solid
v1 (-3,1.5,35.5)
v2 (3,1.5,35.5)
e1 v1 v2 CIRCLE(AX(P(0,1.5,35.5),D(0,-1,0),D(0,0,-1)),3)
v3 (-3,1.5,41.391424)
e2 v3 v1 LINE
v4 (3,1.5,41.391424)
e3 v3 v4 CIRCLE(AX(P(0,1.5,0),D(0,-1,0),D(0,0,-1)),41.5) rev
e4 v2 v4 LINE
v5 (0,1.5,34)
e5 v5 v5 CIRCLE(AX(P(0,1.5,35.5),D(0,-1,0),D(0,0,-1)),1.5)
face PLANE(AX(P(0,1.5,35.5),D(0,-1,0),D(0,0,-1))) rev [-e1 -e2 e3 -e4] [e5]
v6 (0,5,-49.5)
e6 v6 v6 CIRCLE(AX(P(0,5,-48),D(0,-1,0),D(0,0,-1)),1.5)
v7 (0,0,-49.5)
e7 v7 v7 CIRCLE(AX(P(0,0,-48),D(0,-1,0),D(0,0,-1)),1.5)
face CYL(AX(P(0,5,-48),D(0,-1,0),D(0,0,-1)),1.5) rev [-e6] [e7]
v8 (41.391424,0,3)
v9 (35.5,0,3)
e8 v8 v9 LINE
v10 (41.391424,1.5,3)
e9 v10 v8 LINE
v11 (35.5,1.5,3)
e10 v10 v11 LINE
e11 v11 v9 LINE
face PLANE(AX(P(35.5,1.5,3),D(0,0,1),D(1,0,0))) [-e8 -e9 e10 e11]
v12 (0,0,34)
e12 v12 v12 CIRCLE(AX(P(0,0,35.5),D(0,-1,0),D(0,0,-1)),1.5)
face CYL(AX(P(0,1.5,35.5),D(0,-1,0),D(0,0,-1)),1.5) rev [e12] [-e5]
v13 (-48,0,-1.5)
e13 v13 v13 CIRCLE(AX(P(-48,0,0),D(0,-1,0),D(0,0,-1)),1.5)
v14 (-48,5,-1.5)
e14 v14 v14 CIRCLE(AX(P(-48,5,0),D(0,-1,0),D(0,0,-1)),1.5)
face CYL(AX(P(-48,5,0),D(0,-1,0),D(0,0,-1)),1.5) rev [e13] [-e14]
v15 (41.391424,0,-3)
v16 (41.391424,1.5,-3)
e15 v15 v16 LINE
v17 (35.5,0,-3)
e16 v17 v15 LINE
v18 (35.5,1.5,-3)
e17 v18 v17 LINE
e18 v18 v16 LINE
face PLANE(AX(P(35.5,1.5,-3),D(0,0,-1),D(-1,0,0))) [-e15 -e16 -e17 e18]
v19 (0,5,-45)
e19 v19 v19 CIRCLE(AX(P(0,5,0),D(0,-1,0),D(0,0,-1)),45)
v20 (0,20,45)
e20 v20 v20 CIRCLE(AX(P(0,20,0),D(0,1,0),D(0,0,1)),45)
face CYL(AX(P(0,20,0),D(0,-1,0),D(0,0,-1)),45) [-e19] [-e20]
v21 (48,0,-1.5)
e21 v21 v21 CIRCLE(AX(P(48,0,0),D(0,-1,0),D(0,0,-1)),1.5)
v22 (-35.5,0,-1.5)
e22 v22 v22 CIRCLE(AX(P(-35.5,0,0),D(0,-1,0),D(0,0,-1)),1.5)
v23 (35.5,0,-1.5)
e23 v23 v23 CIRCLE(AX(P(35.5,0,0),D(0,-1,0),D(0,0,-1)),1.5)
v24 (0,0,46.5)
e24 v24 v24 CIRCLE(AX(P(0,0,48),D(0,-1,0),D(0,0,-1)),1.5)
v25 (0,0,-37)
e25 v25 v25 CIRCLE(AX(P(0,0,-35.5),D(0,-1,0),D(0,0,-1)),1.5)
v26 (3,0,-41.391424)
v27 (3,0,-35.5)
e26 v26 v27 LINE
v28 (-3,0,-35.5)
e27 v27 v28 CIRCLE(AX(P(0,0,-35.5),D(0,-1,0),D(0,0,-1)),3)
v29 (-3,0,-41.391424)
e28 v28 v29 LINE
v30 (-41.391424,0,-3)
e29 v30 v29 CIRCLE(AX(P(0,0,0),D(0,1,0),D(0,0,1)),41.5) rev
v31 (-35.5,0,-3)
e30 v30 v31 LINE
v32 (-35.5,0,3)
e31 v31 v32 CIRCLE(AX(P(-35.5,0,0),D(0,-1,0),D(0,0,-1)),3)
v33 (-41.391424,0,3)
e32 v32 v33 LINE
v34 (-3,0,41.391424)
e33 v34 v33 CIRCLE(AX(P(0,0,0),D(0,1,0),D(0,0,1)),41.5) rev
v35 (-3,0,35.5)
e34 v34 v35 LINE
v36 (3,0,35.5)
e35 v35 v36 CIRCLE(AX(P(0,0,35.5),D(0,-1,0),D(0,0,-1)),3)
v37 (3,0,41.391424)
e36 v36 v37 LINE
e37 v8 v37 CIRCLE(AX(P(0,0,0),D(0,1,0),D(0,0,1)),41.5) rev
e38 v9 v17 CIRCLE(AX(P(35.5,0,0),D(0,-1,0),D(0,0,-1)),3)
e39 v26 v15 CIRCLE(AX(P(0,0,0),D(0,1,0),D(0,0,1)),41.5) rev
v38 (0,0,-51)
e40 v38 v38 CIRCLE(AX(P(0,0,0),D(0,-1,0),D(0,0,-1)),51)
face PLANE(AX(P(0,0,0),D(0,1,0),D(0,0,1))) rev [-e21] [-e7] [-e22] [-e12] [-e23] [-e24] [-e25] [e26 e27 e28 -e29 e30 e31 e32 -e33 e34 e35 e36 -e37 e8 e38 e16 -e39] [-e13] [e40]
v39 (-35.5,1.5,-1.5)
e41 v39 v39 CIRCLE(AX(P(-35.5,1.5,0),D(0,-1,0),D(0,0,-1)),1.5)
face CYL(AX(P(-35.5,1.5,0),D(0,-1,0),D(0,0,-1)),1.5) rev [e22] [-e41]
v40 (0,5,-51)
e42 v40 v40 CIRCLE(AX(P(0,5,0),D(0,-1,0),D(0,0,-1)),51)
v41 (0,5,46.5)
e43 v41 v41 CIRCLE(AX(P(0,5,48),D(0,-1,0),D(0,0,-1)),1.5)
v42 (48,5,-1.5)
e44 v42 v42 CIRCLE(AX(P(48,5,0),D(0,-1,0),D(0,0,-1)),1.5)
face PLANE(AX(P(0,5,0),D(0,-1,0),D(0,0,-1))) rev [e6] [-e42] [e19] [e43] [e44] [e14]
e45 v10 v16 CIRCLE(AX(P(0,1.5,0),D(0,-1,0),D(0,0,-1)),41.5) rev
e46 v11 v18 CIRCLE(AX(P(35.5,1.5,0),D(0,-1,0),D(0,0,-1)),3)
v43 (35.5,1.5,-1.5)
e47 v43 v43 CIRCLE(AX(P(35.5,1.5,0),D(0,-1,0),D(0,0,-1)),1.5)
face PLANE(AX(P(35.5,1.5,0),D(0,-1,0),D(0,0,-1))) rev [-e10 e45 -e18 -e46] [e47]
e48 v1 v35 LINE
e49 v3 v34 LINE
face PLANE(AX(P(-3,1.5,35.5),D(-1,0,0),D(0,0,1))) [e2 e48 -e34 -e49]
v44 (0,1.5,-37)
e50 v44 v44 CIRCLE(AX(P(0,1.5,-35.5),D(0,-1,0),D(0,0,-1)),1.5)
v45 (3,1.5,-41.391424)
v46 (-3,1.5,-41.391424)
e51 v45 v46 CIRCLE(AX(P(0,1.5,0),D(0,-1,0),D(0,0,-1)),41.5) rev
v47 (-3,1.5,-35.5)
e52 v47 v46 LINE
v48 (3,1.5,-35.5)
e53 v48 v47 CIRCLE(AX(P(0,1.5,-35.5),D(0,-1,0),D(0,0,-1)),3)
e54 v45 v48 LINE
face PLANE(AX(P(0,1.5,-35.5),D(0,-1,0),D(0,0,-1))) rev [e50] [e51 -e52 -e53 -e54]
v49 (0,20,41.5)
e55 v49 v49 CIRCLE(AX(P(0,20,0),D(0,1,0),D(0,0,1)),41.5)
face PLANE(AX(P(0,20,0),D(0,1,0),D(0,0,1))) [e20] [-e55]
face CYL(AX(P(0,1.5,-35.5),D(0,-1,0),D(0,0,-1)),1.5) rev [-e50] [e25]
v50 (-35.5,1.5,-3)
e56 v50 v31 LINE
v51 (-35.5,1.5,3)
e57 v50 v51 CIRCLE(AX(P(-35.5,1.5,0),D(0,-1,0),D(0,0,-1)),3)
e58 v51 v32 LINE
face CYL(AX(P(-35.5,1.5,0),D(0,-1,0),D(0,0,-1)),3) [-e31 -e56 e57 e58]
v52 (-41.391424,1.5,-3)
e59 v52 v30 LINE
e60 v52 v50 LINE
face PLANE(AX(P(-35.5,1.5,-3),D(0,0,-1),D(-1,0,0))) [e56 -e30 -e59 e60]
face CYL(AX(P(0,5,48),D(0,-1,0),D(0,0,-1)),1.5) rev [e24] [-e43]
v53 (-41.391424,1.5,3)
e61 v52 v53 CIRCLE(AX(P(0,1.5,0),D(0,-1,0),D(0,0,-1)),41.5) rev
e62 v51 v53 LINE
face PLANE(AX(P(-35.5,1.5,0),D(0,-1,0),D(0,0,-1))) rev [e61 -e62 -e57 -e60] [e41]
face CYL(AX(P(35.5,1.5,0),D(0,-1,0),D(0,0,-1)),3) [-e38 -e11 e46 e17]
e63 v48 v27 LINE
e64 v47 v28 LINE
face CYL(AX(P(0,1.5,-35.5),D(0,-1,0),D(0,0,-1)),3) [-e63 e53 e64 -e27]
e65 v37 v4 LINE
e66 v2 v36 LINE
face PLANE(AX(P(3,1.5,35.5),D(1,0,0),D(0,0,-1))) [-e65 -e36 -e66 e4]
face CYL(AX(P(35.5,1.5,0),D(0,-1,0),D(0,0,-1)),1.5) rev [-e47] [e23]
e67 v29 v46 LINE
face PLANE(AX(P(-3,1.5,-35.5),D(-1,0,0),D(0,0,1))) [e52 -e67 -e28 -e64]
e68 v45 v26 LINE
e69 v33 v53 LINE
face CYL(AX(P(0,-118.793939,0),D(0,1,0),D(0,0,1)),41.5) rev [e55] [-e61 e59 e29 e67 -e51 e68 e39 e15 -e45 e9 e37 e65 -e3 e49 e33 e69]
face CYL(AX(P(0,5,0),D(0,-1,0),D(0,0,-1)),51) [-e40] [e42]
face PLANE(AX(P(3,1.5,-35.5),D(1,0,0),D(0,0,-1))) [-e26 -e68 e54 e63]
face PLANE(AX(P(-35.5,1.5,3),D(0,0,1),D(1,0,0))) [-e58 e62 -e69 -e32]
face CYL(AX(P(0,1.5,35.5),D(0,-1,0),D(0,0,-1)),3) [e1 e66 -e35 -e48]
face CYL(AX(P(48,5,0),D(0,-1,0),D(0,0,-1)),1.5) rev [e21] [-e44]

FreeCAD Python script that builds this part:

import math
import FreeCAD as App
import Part
import Sketcher

doc = App.newDocument("Part")
body = doc.addObject("PartDesign::Body", "Body")

# Sketch on XZ plane
sketch1 = doc.addObject("Sketcher::SketchObject", "Sketch")
body.addObject(sketch1)
sketch1.AttachmentSupport = (doc.XZ_Plane, [""])
sketch1.MapMode = "FlatFace"
sketch1.addGeometry([
    Part.Circle(App.Vector(0, 0, 0), App.Vector(0, 0, 1), 45),
    Part.Circle(App.Vector(0, 0, 0), App.Vector(0, 0, 1), 42),
], False)
sketch1.addConstraint([
    Sketcher.Constraint("Coincident", 0, 3, -1, 1),
    Sketcher.Constraint("Coincident", 1, 3, -1, 1),
    Sketcher.Constraint("Diameter", 0, 90.0),
    Sketcher.Constraint("Diameter", 1, 84.0),
])
pad1 = doc.addObject("PartDesign::Pad", "Pad")
body.addObject(pad1)
pad1.Profile = sketch1
pad1.Length = 20
pad1.Reversed = True

# Sketch on XZ plane
sketch2 = doc.addObject("Sketcher::SketchObject", "Sketch001")
body.addObject(sketch2)
sketch2.AttachmentSupport = (doc.XZ_Plane, [""])
sketch2.MapMode = "FlatFace"
sketch2.addGeometry([
    Part.Circle(App.Vector(0, 0, 0), App.Vector(0, 0, 1), 51),  # 0
    Part.Circle(App.Vector(0, 48, 0), App.Vector(0, 0, 1), 1.5),  # 1
    Part.Circle(App.Vector(-48, 0, 0), App.Vector(0, 0, 1), 1.5),  # 2
    Part.Circle(App.Vector(48, 0, 0), App.Vector(0, 0, 1), 1.5),  # 3
    Part.Circle(App.Vector(0, 0, 0), App.Vector(0, 0, 1), 45),  # 4
    Part.Circle(App.Vector(0, -48, 0), App.Vector(0, 0, 1), 1.5),  # 5
], False)
sketch2.addConstraint([
    Sketcher.Constraint("Coincident", 0, 3, -1, 1),
    Sketcher.Constraint("Coincident", 4, 3, -1, 1),
    Sketcher.Constraint("Equal", 1, 2),
    Sketcher.Constraint("Equal", 2, 3),
    Sketcher.Constraint("Equal", 3, 5),
    Sketcher.Constraint("Symmetric", 2, 3, 3, 3, -1, 1),
    Sketcher.Constraint("Symmetric", 1, 3, 5, 3, -1, 1),
    Sketcher.Constraint("PointOnObject", 1, 3, -2),
    Sketcher.Constraint("PointOnObject", 2, 3, -1),
    Sketcher.Constraint("Diameter", 0, 102.0),
    Sketcher.Constraint("Diameter", 1, 3.0),
    Sketcher.Constraint("Diameter", 4, 90.0),
    Sketcher.Constraint("DistanceY", -1, 1, 1, 3, 48.0),
    Sketcher.Constraint("DistanceX", 2, 3, -1, 1, 48.0),
])
pad2 = doc.addObject("PartDesign::Pad", "Pad001")
body.addObject(pad2)
pad2.Profile = sketch2
pad2.Length = 5
pad2.Reversed = True

# Sketch on XZ plane
sketch3 = doc.addObject("Sketcher::SketchObject", "Sketch002")
body.addObject(sketch3)
sketch3.AttachmentSupport = (doc.XZ_Plane, [""])
sketch3.MapMode = "FlatFace"
sketch3.addGeometry([
    Part.Circle(App.Vector(0, 0, 0), App.Vector(0, 0, 1), 42),
    Part.Circle(App.Vector(0, 0, 0), App.Vector(0, 0, 1), 42),
], False)
sketch3.addConstraint([
    Sketcher.Constraint("Coincident", 0, 3, -1, 1),
    Sketcher.Constraint("Coincident", 1, 3, -1, 1),
    Sketcher.Constraint("Diameter", 0, 84.0),
    Sketcher.Constraint("Diameter", 1, 83.0),
])
pad3 = doc.addObject("PartDesign::Pad", "Pad002")
body.addObject(pad3)
pad3.Profile = sketch3
pad3.Length = 20
pad3.Reversed = True

# Sketch on XZ plane
sketch4 = doc.addObject("Sketcher::SketchObject", "Sketch003")
body.addObject(sketch4)
sketch4.AttachmentSupport = (doc.XZ_Plane, [""])
sketch4.MapMode = "FlatFace"
sketch4.addGeometry([
    Part.LineSegment(App.Vector(42.2, 3, 0), App.Vector(35.5, 3, 0)),  # 0
    Part.ArcOfCircle(Part.Circle(App.Vector(35.5, 0, 0), App.Vector(0, 0, 1), 3), math.radians(90), math.radians(270)),  # 1
    Part.LineSegment(App.Vector(35.5, -3, 0), App.Vector(42.2, -3, 0)),  # 2
    Part.LineSegment(App.Vector(42.2, -3, 0), App.Vector(42.2, 3, 0)),  # 3
    Part.Circle(App.Vector(35.5, 0, 0), App.Vector(0, 0, 1), 1.5),  # 4
    Part.LineSegment(App.Vector(-3, 42.2, 0), App.Vector(-3, 35.5, 0)),  # 5
    Part.ArcOfCircle(Part.Circle(App.Vector(0, 35.5, 0), App.Vector(0, 0, 1), 3), math.radians(180), math.radians(360)),  # 6
    Part.LineSegment(App.Vector(3, 35.5, 0), App.Vector(3, 42.2, 0)),  # 7
    Part.LineSegment(App.Vector(3, 42.2, 0), App.Vector(-3, 42.2, 0)),  # 8
    Part.Circle(App.Vector(0, 35.5, 0), App.Vector(0, 0, 1), 1.5),  # 9
    Part.LineSegment(App.Vector(3, -42.2, 0), App.Vector(3, -35.5, 0)),  # 10
    Part.ArcOfCircle(Part.Circle(App.Vector(0, -35.5, 0), App.Vector(0, 0, 1), 3), math.radians(0), math.radians(180)),  # 11
    Part.LineSegment(App.Vector(-3, -35.5, 0), App.Vector(-3, -42.2, 0)),  # 12
    Part.LineSegment(App.Vector(-3, -42.2, 0), App.Vector(3, -42.2, 0)),  # 13
    Part.Circle(App.Vector(0, -35.5, 0), App.Vector(0, 0, 1), 1.5),  # 14
    Part.LineSegment(App.Vector(-42.2, -3, 0), App.Vector(-35.5, -3, 0)),  # 15
    Part.ArcOfCircle(Part.Circle(App.Vector(-35.5, 0, 0), App.Vector(0, 0, 1), 3), math.radians(-90), math.radians(90)),  # 16
    Part.LineSegment(App.Vector(-35.5, 3, 0), App.Vector(-42.2, 3, 0)),  # 17
    Part.LineSegment(App.Vector(-42.2, 3, 0), App.Vector(-42.2, -3, 0)),  # 18
    Part.Circle(App.Vector(-35.5, 0, 0), App.Vector(0, 0, 1), 1.5),  # 19
], False)
sketch4.addConstraint([
    Sketcher.Constraint("Tangent", 0, 2, 1, 1),
    Sketcher.Constraint("Tangent", 1, 2, 2, 1),
    Sketcher.Constraint("Coincident", 2, 2, 3, 1),
    Sketcher.Constraint("Coincident", 3, 2, 0, 1),
    Sketcher.Constraint("Tangent", 5, 2, 6, 1),
    Sketcher.Constraint("Tangent", 6, 2, 7, 1),
    Sketcher.Constraint("Coincident", 7, 2, 8, 1),
    Sketcher.Constraint("Coincident", 8, 2, 5, 1),
    Sketcher.Constraint("Tangent", 10, 2, 11, 1),
    Sketcher.Constraint("Tangent", 11, 2, 12, 1),
    Sketcher.Constraint("Coincident", 12, 2, 13, 1),
    Sketcher.Constraint("Coincident", 13, 2, 10, 1),
    Sketcher.Constraint("Tangent", 15, 2, 16, 1),
    Sketcher.Constraint("Tangent", 16, 2, 17, 1),
    Sketcher.Constraint("Coincident", 17, 2, 18, 1),
    Sketcher.Constraint("Coincident", 18, 2, 15, 1),
    Sketcher.Constraint("Horizontal", 0),
    Sketcher.Constraint("Horizontal", 2),
    Sketcher.Constraint("Vertical", 3),
    Sketcher.Constraint("Vertical", 5),
    Sketcher.Constraint("Vertical", 7),
    Sketcher.Constraint("Horizontal", 8),
    Sketcher.Constraint("Vertical", 10),
    Sketcher.Constraint("Vertical", 12),
    Sketcher.Constraint("Horizontal", 13),
    Sketcher.Constraint("Horizontal", 15),
    Sketcher.Constraint("Horizontal", 17),
    Sketcher.Constraint("Vertical", 18),
    Sketcher.Constraint("Coincident", 4, 3, 1, 3),
    Sketcher.Constraint("Coincident", 9, 3, 6, 3),
    Sketcher.Constraint("Coincident", 14, 3, 11, 3),
    Sketcher.Constraint("Coincident", 19, 3, 16, 3),
    Sketcher.Constraint("Equal", 1, 6),
    Sketcher.Constraint("Equal", 4, 9),
    Sketcher.Constraint("Equal", 6, 11),
    Sketcher.Constraint("Equal", 9, 14),
    Sketcher.Constraint("Equal", 11, 16),
    Sketcher.Constraint("Equal", 14, 19),
    Sketcher.Constraint("Symmetric", 6, 3, 11, 3, -1, 1),
    Sketcher.Constraint("Symmetric", 1, 3, 16, 3, -1, 1),
    Sketcher.Constraint("Symmetric", 3, 2, 17, 2, -2),
    Sketcher.Constraint("Symmetric", 8, 2, 12, 2, -1),
    Sketcher.Constraint("Equal", 17, 5),
    Sketcher.Constraint("Diameter", 4, 3.0),
    Sketcher.Constraint("Radius", 1, 3.0),
    Sketcher.Constraint("DistanceY", 11, 3, 6, 3, 71.0),
    Sketcher.Constraint("DistanceX", 16, 3, 1, 3, 71.0),
    Sketcher.Constraint("DistanceX", 0, 2, 0, 1, 6.694384),
])
pad4 = doc.addObject("PartDesign::Pad", "Pad003")
body.addObject(pad4)
pad4.Profile = sketch4
pad4.Length = 1.5
pad4.Reversed = True

doc.recompute()
